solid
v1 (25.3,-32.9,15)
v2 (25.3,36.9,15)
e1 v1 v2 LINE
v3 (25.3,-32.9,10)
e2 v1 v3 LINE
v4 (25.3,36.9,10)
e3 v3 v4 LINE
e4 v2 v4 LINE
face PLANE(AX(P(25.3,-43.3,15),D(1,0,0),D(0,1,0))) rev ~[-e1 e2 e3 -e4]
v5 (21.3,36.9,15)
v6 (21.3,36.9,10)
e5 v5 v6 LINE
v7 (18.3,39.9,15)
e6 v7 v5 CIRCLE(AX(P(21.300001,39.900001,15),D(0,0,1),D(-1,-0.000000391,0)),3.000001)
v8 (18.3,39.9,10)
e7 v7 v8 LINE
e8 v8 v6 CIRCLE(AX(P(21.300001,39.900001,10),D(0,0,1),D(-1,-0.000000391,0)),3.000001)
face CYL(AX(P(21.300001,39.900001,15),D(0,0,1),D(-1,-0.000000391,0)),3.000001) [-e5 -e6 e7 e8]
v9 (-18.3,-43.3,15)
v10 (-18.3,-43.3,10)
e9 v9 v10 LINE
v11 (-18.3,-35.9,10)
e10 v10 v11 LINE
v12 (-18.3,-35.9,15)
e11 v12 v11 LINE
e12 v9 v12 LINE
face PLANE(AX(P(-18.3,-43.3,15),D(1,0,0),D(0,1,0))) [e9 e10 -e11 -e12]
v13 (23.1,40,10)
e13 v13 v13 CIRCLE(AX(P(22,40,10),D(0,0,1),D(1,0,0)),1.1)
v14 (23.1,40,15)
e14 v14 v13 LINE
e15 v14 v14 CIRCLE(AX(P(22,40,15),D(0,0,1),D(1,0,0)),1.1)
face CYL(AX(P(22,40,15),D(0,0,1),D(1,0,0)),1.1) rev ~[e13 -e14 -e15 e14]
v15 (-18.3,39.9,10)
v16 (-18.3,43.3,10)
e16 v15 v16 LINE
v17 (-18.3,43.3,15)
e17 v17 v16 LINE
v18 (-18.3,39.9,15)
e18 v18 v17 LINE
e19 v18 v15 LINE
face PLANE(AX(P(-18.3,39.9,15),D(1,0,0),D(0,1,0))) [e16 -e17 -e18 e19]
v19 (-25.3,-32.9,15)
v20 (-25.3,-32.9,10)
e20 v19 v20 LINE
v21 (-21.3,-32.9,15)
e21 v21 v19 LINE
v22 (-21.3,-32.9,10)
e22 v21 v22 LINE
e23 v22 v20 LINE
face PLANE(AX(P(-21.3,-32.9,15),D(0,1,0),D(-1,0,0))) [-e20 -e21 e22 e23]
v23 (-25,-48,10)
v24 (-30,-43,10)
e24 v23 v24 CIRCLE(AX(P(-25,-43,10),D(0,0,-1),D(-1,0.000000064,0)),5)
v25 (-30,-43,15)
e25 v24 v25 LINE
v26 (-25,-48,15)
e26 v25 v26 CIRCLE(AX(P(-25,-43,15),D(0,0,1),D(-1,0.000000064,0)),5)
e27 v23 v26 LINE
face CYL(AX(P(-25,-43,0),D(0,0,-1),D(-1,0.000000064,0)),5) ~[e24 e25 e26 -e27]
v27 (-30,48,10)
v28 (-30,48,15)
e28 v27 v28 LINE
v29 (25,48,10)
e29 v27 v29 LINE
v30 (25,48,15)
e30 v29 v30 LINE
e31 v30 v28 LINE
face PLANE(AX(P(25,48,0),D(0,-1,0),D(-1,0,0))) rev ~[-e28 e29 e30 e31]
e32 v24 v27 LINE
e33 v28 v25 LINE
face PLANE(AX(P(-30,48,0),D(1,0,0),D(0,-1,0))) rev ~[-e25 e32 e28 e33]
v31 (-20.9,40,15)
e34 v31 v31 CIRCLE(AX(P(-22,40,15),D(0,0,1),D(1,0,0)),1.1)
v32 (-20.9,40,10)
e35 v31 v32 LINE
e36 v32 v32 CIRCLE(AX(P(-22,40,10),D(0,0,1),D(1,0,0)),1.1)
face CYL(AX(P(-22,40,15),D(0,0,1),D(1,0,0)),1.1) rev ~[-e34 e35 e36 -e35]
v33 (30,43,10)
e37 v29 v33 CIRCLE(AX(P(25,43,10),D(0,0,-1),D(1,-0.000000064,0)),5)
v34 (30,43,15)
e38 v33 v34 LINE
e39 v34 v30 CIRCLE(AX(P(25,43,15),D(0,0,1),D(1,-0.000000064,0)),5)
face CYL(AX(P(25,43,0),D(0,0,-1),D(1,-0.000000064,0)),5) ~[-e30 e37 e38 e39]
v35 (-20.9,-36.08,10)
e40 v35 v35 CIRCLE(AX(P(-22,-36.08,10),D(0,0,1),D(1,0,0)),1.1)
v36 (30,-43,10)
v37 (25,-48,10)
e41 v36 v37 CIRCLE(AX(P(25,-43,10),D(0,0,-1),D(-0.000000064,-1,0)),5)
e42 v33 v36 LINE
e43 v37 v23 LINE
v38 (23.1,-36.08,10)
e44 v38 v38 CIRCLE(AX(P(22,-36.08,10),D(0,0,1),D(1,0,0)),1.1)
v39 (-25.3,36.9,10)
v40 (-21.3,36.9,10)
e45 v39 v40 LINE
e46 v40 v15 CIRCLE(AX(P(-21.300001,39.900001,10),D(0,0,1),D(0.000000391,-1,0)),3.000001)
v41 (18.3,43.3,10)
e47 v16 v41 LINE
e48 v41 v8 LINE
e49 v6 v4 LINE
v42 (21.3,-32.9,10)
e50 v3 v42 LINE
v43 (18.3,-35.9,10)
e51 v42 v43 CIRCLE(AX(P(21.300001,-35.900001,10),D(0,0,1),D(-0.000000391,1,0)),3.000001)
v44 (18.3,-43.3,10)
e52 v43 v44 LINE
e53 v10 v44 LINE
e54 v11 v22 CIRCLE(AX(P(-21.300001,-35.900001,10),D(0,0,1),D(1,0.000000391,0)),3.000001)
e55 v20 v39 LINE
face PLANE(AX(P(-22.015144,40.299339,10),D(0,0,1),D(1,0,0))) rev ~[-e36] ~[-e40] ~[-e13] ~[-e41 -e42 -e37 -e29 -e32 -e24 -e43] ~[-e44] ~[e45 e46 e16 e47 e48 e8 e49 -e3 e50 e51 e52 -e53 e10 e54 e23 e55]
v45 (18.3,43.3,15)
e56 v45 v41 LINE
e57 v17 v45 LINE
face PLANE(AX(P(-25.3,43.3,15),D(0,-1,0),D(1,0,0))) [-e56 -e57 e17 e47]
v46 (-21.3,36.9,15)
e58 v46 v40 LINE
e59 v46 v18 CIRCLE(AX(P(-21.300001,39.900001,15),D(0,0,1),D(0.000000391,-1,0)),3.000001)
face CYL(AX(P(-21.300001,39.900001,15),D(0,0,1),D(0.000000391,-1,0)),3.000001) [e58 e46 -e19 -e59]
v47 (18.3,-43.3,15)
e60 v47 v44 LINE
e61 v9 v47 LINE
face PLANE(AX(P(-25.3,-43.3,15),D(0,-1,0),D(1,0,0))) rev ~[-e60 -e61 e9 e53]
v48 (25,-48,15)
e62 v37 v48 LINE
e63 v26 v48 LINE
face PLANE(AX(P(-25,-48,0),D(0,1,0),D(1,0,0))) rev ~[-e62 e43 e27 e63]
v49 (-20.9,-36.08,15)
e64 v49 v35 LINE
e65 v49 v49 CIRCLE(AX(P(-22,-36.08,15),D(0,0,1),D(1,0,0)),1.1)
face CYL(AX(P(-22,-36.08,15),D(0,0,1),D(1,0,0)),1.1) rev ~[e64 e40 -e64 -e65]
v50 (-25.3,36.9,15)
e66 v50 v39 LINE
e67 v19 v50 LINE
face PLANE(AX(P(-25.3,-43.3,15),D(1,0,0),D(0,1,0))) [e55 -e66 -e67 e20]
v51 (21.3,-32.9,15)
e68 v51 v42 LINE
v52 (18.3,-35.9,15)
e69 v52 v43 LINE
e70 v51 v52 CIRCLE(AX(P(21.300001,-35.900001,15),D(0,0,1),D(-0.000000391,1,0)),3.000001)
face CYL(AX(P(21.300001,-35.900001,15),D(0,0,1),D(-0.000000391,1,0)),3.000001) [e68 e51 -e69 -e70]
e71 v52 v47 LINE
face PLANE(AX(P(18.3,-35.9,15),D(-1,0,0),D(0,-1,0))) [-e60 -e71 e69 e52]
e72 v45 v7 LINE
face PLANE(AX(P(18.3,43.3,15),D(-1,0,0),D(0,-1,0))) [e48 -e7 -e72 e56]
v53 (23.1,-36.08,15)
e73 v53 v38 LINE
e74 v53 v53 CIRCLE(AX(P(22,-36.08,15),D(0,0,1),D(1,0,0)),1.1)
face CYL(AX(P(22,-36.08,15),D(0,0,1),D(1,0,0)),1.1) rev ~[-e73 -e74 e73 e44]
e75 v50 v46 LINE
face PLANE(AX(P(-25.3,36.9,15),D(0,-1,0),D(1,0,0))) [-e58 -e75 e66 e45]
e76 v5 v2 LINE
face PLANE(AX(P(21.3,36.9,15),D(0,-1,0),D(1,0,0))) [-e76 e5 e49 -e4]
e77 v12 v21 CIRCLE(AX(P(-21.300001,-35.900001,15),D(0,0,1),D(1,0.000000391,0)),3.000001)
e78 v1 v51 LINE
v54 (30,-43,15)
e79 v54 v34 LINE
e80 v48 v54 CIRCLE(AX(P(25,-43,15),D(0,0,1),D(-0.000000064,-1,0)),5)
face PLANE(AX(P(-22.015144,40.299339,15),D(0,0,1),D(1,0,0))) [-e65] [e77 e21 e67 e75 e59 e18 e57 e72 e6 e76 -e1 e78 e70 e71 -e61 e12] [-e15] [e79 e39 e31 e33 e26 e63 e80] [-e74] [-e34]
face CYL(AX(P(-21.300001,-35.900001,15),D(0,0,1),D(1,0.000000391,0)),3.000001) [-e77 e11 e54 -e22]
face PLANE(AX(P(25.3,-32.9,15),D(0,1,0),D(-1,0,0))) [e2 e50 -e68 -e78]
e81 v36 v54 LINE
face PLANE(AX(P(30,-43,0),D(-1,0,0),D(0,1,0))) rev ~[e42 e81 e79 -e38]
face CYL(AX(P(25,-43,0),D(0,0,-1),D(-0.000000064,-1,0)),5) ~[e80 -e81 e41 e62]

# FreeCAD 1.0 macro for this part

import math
import FreeCAD as App
import Part
import Sketcher

V = App.Vector
Q = App.Units.Quantity

doc = App.newDocument("Part")
params = doc.addObject("Spreadsheet::Sheet", "Params")
for row, (alias, value) in enumerate([
    ("sketch1_diameter", "3 mm"),
    ("sketch1_radius", "5 mm"),
    ("sketch1_width", "50 mm"),
    ("sketch1_height", "86 mm"),
    ("pad1_length", "15 mm"),
    ("sketch2_diameter", "3 mm"),
    ("sketch2_width", "50.6 mm"),
    ("sketch2_height", "86.6 mm"),
    ("pocket1_length", "22 mm"),
    ("sketch3_radius", "3.000001 mm"),
    ("sketch3_diameter", "2.2 mm"),
    ("sketch3_width", "7 mm"),
    ("sketch3_height", "6.4 mm"),
    ("sketch3_height2", "10.4 mm"),
    ("pad2_length", "5 mm"),
    ("pocket2_length", "10 mm"),
], start=1):
    params.set(f"A{row}", alias)
    params.set(f"B{row}", "=" + value)
    params.setAlias(f"B{row}", alias)

body = doc.addObject("PartDesign::Body", "Body")

# Sketch on XY plane
sketch1 = body.newObject("Sketcher::SketchObject", "Sketch")
sketch1.AttachmentSupport = (doc.getObject("XY_Plane"), [""])
sketch1.MapMode = "FlatFace"
sketch1.addGeometry([
    Part.LineSegment(V(-25, -48, 0), V(25, -48, 0)),  # 0
    Part.ArcOfCircle(Part.Circle(V(25, -43, 0), V(0, 0, 1), 5), math.radians(-90), math.radians(0)),  # 1
    Part.LineSegment(V(30, -43, 0), V(30, 43, 0)),  # 2
    Part.ArcOfCircle(Part.Circle(V(25, 43, 0), V(0, 0, 1), 5), math.radians(0), math.radians(90)),  # 3
    Part.LineSegment(V(25, 48, 0), V(-30, 48, 0)),  # 4
    Part.LineSegment(V(-30, 48, 0), V(-30, -43, 0)),  # 5
    Part.ArcOfCircle(Part.Circle(V(-25, -43, 0), V(0, 0, 1), 5), math.radians(180), math.radians(270)),  # 6
    Part.Circle(V(-22, -36.1, 0), V(0, 0, 1), 1.5),  # 7
    Part.Circle(V(22, -36.1, 0), V(0, 0, 1), 1.5),  # 8
    Part.Circle(V(-22, 40, 0), V(0, 0, 1), 1.5),  # 9
    Part.Circle(V(22, 40, 0), V(0, 0, 1), 1.5),  # 10
], False)
sketch1.addConstraint([
    Sketcher.Constraint("Tangent", 0, 2, 1, 1),
    Sketcher.Constraint("Tangent", 1, 2, 2, 1),
    Sketcher.Constraint("Tangent", 2, 2, 3, 1),
    Sketcher.Constraint("Tangent", 3, 2, 4, 1),
    Sketcher.Constraint("Coincident", 4, 2, 5, 1),
    Sketcher.Constraint("Tangent", 5, 2, 6, 1),
    Sketcher.Constraint("Tangent", 6, 2, 0, 1),
    Sketcher.Constraint("Horizontal", 0),
    Sketcher.Constraint("Vertical", 2),
    Sketcher.Constraint("Horizontal", 4),
    Sketcher.Constraint("Vertical", 5),
    Sketcher.Constraint("Equal", 1, 3),
    Sketcher.Constraint("Equal", 3, 6),
    Sketcher.Constraint("Equal", 7, 8),
    Sketcher.Constraint("Equal", 8, 9),
    Sketcher.Constraint("Equal", 9, 10),
    Sketcher.Constraint("Symmetric", 3, 3, 6, 3, -1, 1),
    Sketcher.Constraint("Symmetric", 7, 3, 8, 3, -2),
    Sketcher.Constraint("Symmetric", 9, 3, 10, 3, -2),
    Sketcher.Constraint("Vertical", 7, 3, 9, 3),
    Sketcher.Constraint("Diameter", 7, Q("3 mm")),
    Sketcher.Constraint("Radius", 1, Q("5 mm")),
    Sketcher.Constraint("DistanceX", 0, 1, 0, 2, Q("50 mm")),
    Sketcher.Constraint("DistanceY", 2, 1, 2, 2, Q("86 mm")),
    Sketcher.Constraint("DistanceX", 7, 3, -1, 1, Q("22 mm")),
    Sketcher.Constraint("DistanceY", -1, 1, 9, 3, Q("40 mm")),
    Sketcher.Constraint("DistanceY", 7, 3, -1, 1, Q("36.08 mm")),
])
sketch1.setExpression("Constraints[20]", "Params.sketch1_diameter")
sketch1.setExpression("Constraints[21]", "Params.sketch1_radius")
sketch1.setExpression("Constraints[22]", "Params.sketch1_width")
sketch1.setExpression("Constraints[23]", "Params.sketch1_height")
pad1 = body.newObject("PartDesign::Pad", "Pad")
pad1.Profile = sketch1
pad1.setExpression("Length", "Params.pad1_length")

# Sketch on XY plane
sketch2 = body.newObject("Sketcher::SketchObject", "Sketch001")
sketch2.AttachmentSupport = (doc.getObject("XY_Plane"), [""])
sketch2.MapMode = "FlatFace"
sketch2.AttachmentOffset = App.Placement(V(0, 0, 15), App.Rotation())
sketch2.addGeometry([
    Part.LineSegment(V(-25.3, 43.3, 0), V(-25.3, -43.3, 0)),  # 0
    Part.LineSegment(V(-25.3, -43.3, 0), V(25.3, -43.3, 0)),  # 1
    Part.LineSegment(V(25.3, -43.3, 0), V(25.3, 43.3, 0)),  # 2
    Part.LineSegment(V(25.3, 43.3, 0), V(-25.3, 43.3, 0)),  # 3
    Part.Circle(V(-22, -36.1, 0), V(0, 0, 1), 1.5),  # 4
    Part.Circle(V(22, -36.1, 0), V(0, 0, 1), 1.5),  # 5
    Part.Circle(V(-22, 40, 0), V(0, 0, 1), 1.5),  # 6
    Part.Circle(V(22, 40, 0), V(0, 0, 1), 1.5),  # 7
], False)
sketch2.addConstraint([
    Sketcher.Constraint("Coincident", 0, 2, 1, 1),
    Sketcher.Constraint("Coincident", 1, 2, 2, 1),
    Sketcher.Constraint("Coincident", 2, 2, 3, 1),
    Sketcher.Constraint("Coincident", 3, 2, 0, 1),
    Sketcher.Constraint("Vertical", 0),
    Sketcher.Constraint("Horizontal", 1),
    Sketcher.Constraint("Vertical", 2),
    Sketcher.Constraint("Horizontal", 3),
    Sketcher.Constraint("Equal", 4, 5),
    Sketcher.Constraint("Equal", 5, 6),
    Sketcher.Constraint("Equal", 6, 7),
    Sketcher.Constraint("Symmetric", 0, 2, 2, 2, -1, 1),
    Sketcher.Constraint("Symmetric", 4, 3, 5, 3, -2),
    Sketcher.Constraint("Symmetric", 6, 3, 7, 3, -2),
    Sketcher.Constraint("Vertical", 4, 3, 6, 3),
    Sketcher.Constraint("Diameter", 4, Q("3 mm")),
    Sketcher.Constraint("DistanceX", 1, 1, 1, 2, Q("50.6 mm")),
    Sketcher.Constraint("DistanceY", 0, 2, 0, 1, Q("86.6 mm")),
    Sketcher.Constraint("DistanceX", 4, 3, -1, 1, Q("22 mm")),
    Sketcher.Constraint("DistanceY", -1, 1, 6, 3, Q("40 mm")),
    Sketcher.Constraint("DistanceY", 4, 3, -1, 1, Q("36.08 mm")),
])
sketch2.setExpression("Constraints[15]", "Params.sketch2_diameter")
sketch2.setExpression("Constraints[16]", "Params.sketch2_width")
sketch2.setExpression("Constraints[17]", "Params.sketch2_height")
pocket1 = body.newObject("PartDesign::Pocket", "Pocket")
pocket1.Profile = sketch2
pocket1.setExpression("Length", "Params.pocket1_length")

# Sketch on XY plane
sketch3 = body.newObject("Sketcher::SketchObject", "Sketch002")
sketch3.AttachmentSupport = (doc.getObject("XY_Plane"), [""])
sketch3.MapMode = "FlatFace"
sketch3.AttachmentOffset = App.Placement(V(0, 0, 15), App.Rotation())
sketch3.addGeometry([
    Part.LineSegment(V(-18.3, 43.3, 0), V(-25.3, 43.3, 0)),  # 0
    Part.LineSegment(V(-25.3, 43.3, 0), V(-25.3, 36.9, 0)),  # 1
    Part.LineSegment(V(-25.3, 36.9, 0), V(-21.3, 36.9, 0)),  # 2
    Part.ArcOfCircle(Part.Circle(V(-21.3, 39.9, 0), V(0, 0, 1), 3), math.radians(-90), math.radians(0)),  # 3
    Part.LineSegment(V(-18.3, 39.9, 0), V(-18.3, 43.3, 0)),  # 4
    Part.Circle(V(-22, 40, 0), V(0, 0, 1), 1.1),  # 5
    Part.LineSegment(V(25.3, 36.9, 0), V(25.3, 43.3, 0)),  # 6
    Part.LineSegment(V(25.3, 43.3, 0), V(18.3, 43.3, 0)),  # 7
    Part.LineSegment(V(18.3, 43.3, 0), V(18.3, 39.9, 0)),  # 8
    Part.ArcOfCircle(Part.Circle(V(21.3, 39.9, 0), V(0, 0, 1), 3), math.radians(-180), math.radians(-90)),  # 9
    Part.LineSegment(V(21.3, 36.9, 0), V(25.3, 36.9, 0)),  # 10
    Part.Circle(V(22, 40, 0), V(0, 0, 1), 1.1),  # 11
    Part.LineSegment(V(18.3, -43.3, 0), V(25.3, -43.3, 0)),  # 12
    Part.LineSegment(V(25.3, -43.3, 0), V(25.3, -32.9, 0)),  # 13
    Part.LineSegment(V(25.3, -32.9, 0), V(21.3, -32.9, 0)),  # 14
    Part.ArcOfCircle(Part.Circle(V(21.3, -35.9, 0), V(0, 0, 1), 3), math.radians(90), math.radians(180)),  # 15
    Part.LineSegment(V(18.3, -35.9, 0), V(18.3, -43.3, 0)),  # 16
    Part.Circle(V(22, -36.1, 0), V(0, 0, 1), 1.1),  # 17
    Part.LineSegment(V(-25.3, -32.9, 0), V(-25.3, -43.3, 0)),  # 18
    Part.LineSegment(V(-25.3, -43.3, 0), V(-18.3, -43.3, 0)),  # 19
    Part.LineSegment(V(-18.3, -43.3, 0), V(-18.3, -35.9, 0)),  # 20
    Part.ArcOfCircle(Part.Circle(V(-21.3, -35.9, 0), V(0, 0, 1), 3), math.radians(0), math.radians(90)),  # 21
    Part.LineSegment(V(-21.3, -32.9, 0), V(-25.3, -32.9, 0)),  # 22
    Part.Circle(V(-22, -36.1, 0), V(0, 0, 1), 1.1),  # 23
], False)
sketch3.addConstraint([
    Sketcher.Constraint("Coincident", 0, 2, 1, 1),
    Sketcher.Constraint("Coincident", 1, 2, 2, 1),
    Sketcher.Constraint("Tangent", 2, 2, 3, 1),
    Sketcher.Constraint("Tangent", 3, 2, 4, 1),
    Sketcher.Constraint("Coincident", 4, 2, 0, 1),
    Sketcher.Constraint("Coincident", 6, 2, 7, 1),
    Sketcher.Constraint("Coincident", 7, 2, 8, 1),
    Sketcher.Constraint("Tangent", 8, 2, 9, 1),
    Sketcher.Constraint("Tangent", 9, 2, 10, 1),
    Sketcher.Constraint("Coincident", 10, 2, 6, 1),
    Sketcher.Constraint("Coincident", 12, 2, 13, 1),
    Sketcher.Constraint("Coincident", 13, 2, 14, 1),
    Sketcher.Constraint("Tangent", 14, 2, 15, 1),
    Sketcher.Constraint("Tangent", 15, 2, 16, 1),
    Sketcher.Constraint("Coincident", 16, 2, 12, 1),
    Sketcher.Constraint("Coincident", 18, 2, 19, 1),
    Sketcher.Constraint("Coincident", 19, 2, 20, 1),
    Sketcher.Constraint("Tangent", 20, 2, 21, 1),
    Sketcher.Constraint("Tangent", 21, 2, 22, 1),
    Sketcher.Constraint("Coincident", 22, 2, 18, 1),
    Sketcher.Constraint("Horizontal", 0),
    Sketcher.Constraint("Vertical", 1),
    Sketcher.Constraint("Horizontal", 2),
    Sketcher.Constraint("Vertical", 4),
    Sketcher.Constraint("Vertical", 6),
    Sketcher.Constraint("Horizontal", 7),
    Sketcher.Constraint("Vertical", 8),
    Sketcher.Constraint("Horizontal", 10),
    Sketcher.Constraint("Horizontal", 12),
    Sketcher.Constraint("Vertical", 13),
    Sketcher.Constraint("Horizontal", 14),
    Sketcher.Constraint("Vertical", 16),
    Sketcher.Constraint("Vertical", 18),
    Sketcher.Constraint("Horizontal", 19),
    Sketcher.Constraint("Vertical", 20),
    Sketcher.Constraint("Horizontal", 22),
    Sketcher.Constraint("Equal", 3, 9),
    Sketcher.Constraint("Equal", 5, 11),
    Sketcher.Constraint("Equal", 9, 15),
    Sketcher.Constraint("Equal", 11, 17),
    Sketcher.Constraint("Equal", 15, 21),
    Sketcher.Constraint("Equal", 17, 23),
    Sketcher.Constraint("Symmetric", 0, 2, 12, 2, -1, 1),
    Sketcher.Constraint("Symmetric", 6, 2, 18, 2, -1, 1),
    Sketcher.Constraint("Symmetric", 3, 3, 9, 3, -2),
    Sketcher.Constraint("Symmetric", 5, 3, 11, 3, -2),
    Sketcher.Constraint("Symmetric", 15, 3, 21, 3, -2),
    Sketcher.Constraint("Symmetric", 17, 3, 23, 3, -2),
    Sketcher.Constraint("Symmetric", 0, 2, 6, 2, -2),
    Sketcher.Constraint("Vertical", 9, 3, 15, 3),
    Sketcher.Constraint("Vertical", 11, 3, 17, 3),
    Sketcher.Constraint("Radius", 3, Q("3.000001 mm")),
    Sketcher.Constraint("Diameter", 5, Q("2.2 mm")),
    Sketcher.Constraint("DistanceX", 0, 2, 0, 1, Q("7 mm")),
    Sketcher.Constraint("DistanceY", 1, 2, 1, 1, Q("6.4 mm")),
    Sketcher.Constraint("DistanceY", 13, 1, 13, 2, Q("10.4 mm")),
    Sketcher.Constraint("DistanceX", 5, 3, -1, 1, Q("22 mm")),
    Sketcher.Constraint("DistanceY", -1, 1, 5, 3, Q("40 mm")),
    Sketcher.Constraint("DistanceX", 3, 3, -1, 1, Q("21.300001 mm")),
    Sketcher.Constraint("DistanceY", -1, 1, 3, 3, Q("39.900001 mm")),
    Sketcher.Constraint("DistanceY", 17, 3, -1, 1, Q("36.08 mm")),
])
sketch3.setExpression("Constraints[51]", "Params.sketch3_radius")
sketch3.setExpression("Constraints[52]", "Params.sketch3_diameter")
sketch3.setExpression("Constraints[53]", "Params.sketch3_width")
sketch3.setExpression("Constraints[54]", "Params.sketch3_height")
sketch3.setExpression("Constraints[55]", "Params.sketch3_height2")
pad2 = body.newObject("PartDesign::Pad", "Pad001")
pad2.Profile = sketch3
pad2.setExpression("Length", "Params.pad2_length")
pad2.Reversed = True

# Sketch on XY plane
sketch4 = body.newObject("Sketcher::SketchObject", "Sketch003")
sketch4.AttachmentSupport = (doc.getObject("XY_Plane"), [""])
sketch4.MapMode = "FlatFace"
sketch4.addGeometry([
    Part.LineSegment(V(-59, -86, 0), V(-59, 95, 0)),
    Part.LineSegment(V(-59, 95, 0), V(47, 95, 0)),
    Part.LineSegment(V(47, 95, 0), V(47, -86, 0)),
    Part.LineSegment(V(47, -86, 0), V(-59, -86, 0)),
], False)
sketch4.addConstraint([
    Sketcher.Constraint("Coincident", 0, 2, 1, 1),
    Sketcher.Constraint("Coincident", 1, 2, 2, 1),
    Sketcher.Constraint("Coincident", 2, 2, 3, 1),
    Sketcher.Constraint("Coincident", 3, 2, 0, 1),
    Sketcher.Constraint("Vertical", 0),
    Sketcher.Constraint("Horizontal", 1),
    Sketcher.Constraint("Vertical", 2),
    Sketcher.Constraint("Horizontal", 3),
    Sketcher.Constraint("DistanceX", 1, 1, 1, 2, Q("105.847951 mm")),
    Sketcher.Constraint("DistanceY", 0, 1, 0, 2, Q("180.898867 mm")),
    Sketcher.Constraint("DistanceX", 0, 2, -1, 1, Q("58.712128 mm")),
    Sketcher.Constraint("DistanceY", -1, 1, 0, 2, Q("95.343232 mm")),
])
pocket2 = body.newObject("PartDesign::Pocket", "Pocket001")
pocket2.Profile = sketch4
pocket2.setExpression("Length", "Params.pocket2_length")
pocket2.Reversed = True

doc.recompute()
